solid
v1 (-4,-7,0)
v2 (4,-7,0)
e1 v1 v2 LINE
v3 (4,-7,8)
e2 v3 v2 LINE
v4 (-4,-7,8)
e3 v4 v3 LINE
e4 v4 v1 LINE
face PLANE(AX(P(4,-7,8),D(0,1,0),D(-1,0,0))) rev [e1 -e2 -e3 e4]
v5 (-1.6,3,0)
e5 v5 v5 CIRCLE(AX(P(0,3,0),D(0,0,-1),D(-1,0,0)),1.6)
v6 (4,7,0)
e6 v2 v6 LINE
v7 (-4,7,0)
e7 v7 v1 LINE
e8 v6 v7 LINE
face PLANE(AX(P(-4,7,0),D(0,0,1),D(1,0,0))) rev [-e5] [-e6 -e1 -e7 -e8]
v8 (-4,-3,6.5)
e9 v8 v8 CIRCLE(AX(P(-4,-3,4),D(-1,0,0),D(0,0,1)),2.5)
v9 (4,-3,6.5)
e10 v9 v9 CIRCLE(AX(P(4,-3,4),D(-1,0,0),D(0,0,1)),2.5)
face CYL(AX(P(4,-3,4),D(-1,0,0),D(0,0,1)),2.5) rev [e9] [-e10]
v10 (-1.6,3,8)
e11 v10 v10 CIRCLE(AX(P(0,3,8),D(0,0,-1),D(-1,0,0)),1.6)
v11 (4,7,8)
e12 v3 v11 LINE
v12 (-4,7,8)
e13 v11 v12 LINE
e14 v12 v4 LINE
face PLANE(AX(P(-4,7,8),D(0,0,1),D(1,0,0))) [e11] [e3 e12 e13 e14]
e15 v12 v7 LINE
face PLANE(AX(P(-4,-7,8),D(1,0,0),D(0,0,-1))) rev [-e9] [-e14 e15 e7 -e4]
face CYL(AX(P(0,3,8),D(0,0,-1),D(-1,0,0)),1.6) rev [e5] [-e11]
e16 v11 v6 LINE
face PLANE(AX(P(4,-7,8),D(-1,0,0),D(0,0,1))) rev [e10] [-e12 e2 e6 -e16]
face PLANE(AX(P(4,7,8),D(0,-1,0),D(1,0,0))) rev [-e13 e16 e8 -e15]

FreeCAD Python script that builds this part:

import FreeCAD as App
import Part
import Sketcher

V = App.Vector
Q = App.Units.Quantity


def add_polygon(sketch, points):
    """Adds a closed chain of lines whose ends are joined by coincident constraints."""
    first, n = sketch.GeometryCount, len(points)
    for a, b in zip(points, points[1:] + points[:1]):
        sketch.addGeometry(Part.LineSegment(App.Vector(*a, 0), App.Vector(*b, 0)), False)
    for i in range(n):
        sketch.addConstraint(Sketcher.Constraint("Coincident", first + i, 2, first + (i + 1) % n, 1))

doc = App.newDocument("Part")
params = doc.addObject("Spreadsheet::Sheet", "Params")
for row, (alias, value) in enumerate([
    ("sketch1_width", "8 mm"),
    ("sketch1_height", "14 mm"),
    ("pad1_length", "8 mm"),
    ("sketch2_diameter", "3.2 mm"),
    ("sketch3_diameter", "5 mm"),
], start=1):
    params.set(f"A{row}", alias)
    params.set(f"B{row}", "=" + value)
    params.setAlias(f"B{row}", alias)

body = doc.addObject("PartDesign::Body", "Body")

# Sketch on XY plane
sketch1 = body.newObject("Sketcher::SketchObject", "Sketch")
sketch1.AttachmentSupport = (doc.getObject("XY_Plane"), [""])
sketch1.MapMode = "FlatFace"
add_polygon(sketch1, [(-4, 7), (-4, -7), (4, -7), (4, 7)])  # lines 0-3
sketch1.addConstraint(Sketcher.Constraint("Vertical", 0))
sketch1.addConstraint(Sketcher.Constraint("Horizontal", 1))
sketch1.addConstraint(Sketcher.Constraint("Vertical", 2))
sketch1.addConstraint(Sketcher.Constraint("Horizontal", 3))
sketch1.addConstraint(Sketcher.Constraint("Symmetric", 0, 2, 2, 2, -1, 1))
sketch1.addConstraint(Sketcher.Constraint("DistanceX", 1, 1, 1, 2, Q("8 mm")))
sketch1.addConstraint(Sketcher.Constraint("DistanceY", 0, 2, 0, 1, Q("14 mm")))
sketch1.setExpression("Constraints[9]", "Params.sketch1_width")
sketch1.setExpression("Constraints[10]", "Params.sketch1_height")
pad1 = body.newObject("PartDesign::Pad", "Pad")
pad1.Profile = sketch1
pad1.setExpression("Length", "Params.pad1_length")

# Sketch on XY plane
sketch2 = body.newObject("Sketcher::SketchObject", "Sketch001")
sketch2.AttachmentSupport = (doc.getObject("XY_Plane"), [""])
sketch2.MapMode = "FlatFace"
sketch2.addGeometry(Part.Circle(V(0, 3, 0), V(0, 0, 1), 1.6), False)
sketch2.addConstraint(Sketcher.Constraint("PointOnObject", 0, 3, -2))
sketch2.addConstraint(Sketcher.Constraint("Diameter", 0, Q("3.2 mm")))
sketch2.addConstraint(Sketcher.Constraint("DistanceY", -1, 1, 0, 3, Q("3 mm")))
sketch2.setExpression("Constraints[1]", "Params.sketch2_diameter")
pocket1 = body.newObject("PartDesign::Pocket", "Pocket")
pocket1.Profile = sketch2
pocket1.Type = "ThroughAll"
pocket1.Reversed = True

# Sketch on YZ plane
sketch3 = body.newObject("Sketcher::SketchObject", "Sketch002")
sketch3.AttachmentSupport = (doc.getObject("YZ_Plane"), [""])
sketch3.MapMode = "FlatFace"
sketch3.AttachmentOffset = App.Placement(V(0, 0, -4), App.Rotation())
sketch3.addGeometry(Part.Circle(V(-3, 4, 0), V(0, 0, 1), 2.5), False)
sketch3.addConstraint(Sketcher.Constraint("Diameter", 0, Q("5 mm")))
sketch3.addConstraint(Sketcher.Constraint("DistanceX", 0, 3, -1, 1, Q("3 mm")))
sketch3.addConstraint(Sketcher.Constraint("DistanceY", -1, 1, 0, 3, Q("4 mm")))
sketch3.setExpression("Constraints[0]", "Params.sketch3_diameter")
pocket2 = body.newObject("PartDesign::Pocket", "Pocket001")
pocket2.Profile = sketch3
pocket2.Type = "ThroughAll"
pocket2.Reversed = True

doc.recompute()
